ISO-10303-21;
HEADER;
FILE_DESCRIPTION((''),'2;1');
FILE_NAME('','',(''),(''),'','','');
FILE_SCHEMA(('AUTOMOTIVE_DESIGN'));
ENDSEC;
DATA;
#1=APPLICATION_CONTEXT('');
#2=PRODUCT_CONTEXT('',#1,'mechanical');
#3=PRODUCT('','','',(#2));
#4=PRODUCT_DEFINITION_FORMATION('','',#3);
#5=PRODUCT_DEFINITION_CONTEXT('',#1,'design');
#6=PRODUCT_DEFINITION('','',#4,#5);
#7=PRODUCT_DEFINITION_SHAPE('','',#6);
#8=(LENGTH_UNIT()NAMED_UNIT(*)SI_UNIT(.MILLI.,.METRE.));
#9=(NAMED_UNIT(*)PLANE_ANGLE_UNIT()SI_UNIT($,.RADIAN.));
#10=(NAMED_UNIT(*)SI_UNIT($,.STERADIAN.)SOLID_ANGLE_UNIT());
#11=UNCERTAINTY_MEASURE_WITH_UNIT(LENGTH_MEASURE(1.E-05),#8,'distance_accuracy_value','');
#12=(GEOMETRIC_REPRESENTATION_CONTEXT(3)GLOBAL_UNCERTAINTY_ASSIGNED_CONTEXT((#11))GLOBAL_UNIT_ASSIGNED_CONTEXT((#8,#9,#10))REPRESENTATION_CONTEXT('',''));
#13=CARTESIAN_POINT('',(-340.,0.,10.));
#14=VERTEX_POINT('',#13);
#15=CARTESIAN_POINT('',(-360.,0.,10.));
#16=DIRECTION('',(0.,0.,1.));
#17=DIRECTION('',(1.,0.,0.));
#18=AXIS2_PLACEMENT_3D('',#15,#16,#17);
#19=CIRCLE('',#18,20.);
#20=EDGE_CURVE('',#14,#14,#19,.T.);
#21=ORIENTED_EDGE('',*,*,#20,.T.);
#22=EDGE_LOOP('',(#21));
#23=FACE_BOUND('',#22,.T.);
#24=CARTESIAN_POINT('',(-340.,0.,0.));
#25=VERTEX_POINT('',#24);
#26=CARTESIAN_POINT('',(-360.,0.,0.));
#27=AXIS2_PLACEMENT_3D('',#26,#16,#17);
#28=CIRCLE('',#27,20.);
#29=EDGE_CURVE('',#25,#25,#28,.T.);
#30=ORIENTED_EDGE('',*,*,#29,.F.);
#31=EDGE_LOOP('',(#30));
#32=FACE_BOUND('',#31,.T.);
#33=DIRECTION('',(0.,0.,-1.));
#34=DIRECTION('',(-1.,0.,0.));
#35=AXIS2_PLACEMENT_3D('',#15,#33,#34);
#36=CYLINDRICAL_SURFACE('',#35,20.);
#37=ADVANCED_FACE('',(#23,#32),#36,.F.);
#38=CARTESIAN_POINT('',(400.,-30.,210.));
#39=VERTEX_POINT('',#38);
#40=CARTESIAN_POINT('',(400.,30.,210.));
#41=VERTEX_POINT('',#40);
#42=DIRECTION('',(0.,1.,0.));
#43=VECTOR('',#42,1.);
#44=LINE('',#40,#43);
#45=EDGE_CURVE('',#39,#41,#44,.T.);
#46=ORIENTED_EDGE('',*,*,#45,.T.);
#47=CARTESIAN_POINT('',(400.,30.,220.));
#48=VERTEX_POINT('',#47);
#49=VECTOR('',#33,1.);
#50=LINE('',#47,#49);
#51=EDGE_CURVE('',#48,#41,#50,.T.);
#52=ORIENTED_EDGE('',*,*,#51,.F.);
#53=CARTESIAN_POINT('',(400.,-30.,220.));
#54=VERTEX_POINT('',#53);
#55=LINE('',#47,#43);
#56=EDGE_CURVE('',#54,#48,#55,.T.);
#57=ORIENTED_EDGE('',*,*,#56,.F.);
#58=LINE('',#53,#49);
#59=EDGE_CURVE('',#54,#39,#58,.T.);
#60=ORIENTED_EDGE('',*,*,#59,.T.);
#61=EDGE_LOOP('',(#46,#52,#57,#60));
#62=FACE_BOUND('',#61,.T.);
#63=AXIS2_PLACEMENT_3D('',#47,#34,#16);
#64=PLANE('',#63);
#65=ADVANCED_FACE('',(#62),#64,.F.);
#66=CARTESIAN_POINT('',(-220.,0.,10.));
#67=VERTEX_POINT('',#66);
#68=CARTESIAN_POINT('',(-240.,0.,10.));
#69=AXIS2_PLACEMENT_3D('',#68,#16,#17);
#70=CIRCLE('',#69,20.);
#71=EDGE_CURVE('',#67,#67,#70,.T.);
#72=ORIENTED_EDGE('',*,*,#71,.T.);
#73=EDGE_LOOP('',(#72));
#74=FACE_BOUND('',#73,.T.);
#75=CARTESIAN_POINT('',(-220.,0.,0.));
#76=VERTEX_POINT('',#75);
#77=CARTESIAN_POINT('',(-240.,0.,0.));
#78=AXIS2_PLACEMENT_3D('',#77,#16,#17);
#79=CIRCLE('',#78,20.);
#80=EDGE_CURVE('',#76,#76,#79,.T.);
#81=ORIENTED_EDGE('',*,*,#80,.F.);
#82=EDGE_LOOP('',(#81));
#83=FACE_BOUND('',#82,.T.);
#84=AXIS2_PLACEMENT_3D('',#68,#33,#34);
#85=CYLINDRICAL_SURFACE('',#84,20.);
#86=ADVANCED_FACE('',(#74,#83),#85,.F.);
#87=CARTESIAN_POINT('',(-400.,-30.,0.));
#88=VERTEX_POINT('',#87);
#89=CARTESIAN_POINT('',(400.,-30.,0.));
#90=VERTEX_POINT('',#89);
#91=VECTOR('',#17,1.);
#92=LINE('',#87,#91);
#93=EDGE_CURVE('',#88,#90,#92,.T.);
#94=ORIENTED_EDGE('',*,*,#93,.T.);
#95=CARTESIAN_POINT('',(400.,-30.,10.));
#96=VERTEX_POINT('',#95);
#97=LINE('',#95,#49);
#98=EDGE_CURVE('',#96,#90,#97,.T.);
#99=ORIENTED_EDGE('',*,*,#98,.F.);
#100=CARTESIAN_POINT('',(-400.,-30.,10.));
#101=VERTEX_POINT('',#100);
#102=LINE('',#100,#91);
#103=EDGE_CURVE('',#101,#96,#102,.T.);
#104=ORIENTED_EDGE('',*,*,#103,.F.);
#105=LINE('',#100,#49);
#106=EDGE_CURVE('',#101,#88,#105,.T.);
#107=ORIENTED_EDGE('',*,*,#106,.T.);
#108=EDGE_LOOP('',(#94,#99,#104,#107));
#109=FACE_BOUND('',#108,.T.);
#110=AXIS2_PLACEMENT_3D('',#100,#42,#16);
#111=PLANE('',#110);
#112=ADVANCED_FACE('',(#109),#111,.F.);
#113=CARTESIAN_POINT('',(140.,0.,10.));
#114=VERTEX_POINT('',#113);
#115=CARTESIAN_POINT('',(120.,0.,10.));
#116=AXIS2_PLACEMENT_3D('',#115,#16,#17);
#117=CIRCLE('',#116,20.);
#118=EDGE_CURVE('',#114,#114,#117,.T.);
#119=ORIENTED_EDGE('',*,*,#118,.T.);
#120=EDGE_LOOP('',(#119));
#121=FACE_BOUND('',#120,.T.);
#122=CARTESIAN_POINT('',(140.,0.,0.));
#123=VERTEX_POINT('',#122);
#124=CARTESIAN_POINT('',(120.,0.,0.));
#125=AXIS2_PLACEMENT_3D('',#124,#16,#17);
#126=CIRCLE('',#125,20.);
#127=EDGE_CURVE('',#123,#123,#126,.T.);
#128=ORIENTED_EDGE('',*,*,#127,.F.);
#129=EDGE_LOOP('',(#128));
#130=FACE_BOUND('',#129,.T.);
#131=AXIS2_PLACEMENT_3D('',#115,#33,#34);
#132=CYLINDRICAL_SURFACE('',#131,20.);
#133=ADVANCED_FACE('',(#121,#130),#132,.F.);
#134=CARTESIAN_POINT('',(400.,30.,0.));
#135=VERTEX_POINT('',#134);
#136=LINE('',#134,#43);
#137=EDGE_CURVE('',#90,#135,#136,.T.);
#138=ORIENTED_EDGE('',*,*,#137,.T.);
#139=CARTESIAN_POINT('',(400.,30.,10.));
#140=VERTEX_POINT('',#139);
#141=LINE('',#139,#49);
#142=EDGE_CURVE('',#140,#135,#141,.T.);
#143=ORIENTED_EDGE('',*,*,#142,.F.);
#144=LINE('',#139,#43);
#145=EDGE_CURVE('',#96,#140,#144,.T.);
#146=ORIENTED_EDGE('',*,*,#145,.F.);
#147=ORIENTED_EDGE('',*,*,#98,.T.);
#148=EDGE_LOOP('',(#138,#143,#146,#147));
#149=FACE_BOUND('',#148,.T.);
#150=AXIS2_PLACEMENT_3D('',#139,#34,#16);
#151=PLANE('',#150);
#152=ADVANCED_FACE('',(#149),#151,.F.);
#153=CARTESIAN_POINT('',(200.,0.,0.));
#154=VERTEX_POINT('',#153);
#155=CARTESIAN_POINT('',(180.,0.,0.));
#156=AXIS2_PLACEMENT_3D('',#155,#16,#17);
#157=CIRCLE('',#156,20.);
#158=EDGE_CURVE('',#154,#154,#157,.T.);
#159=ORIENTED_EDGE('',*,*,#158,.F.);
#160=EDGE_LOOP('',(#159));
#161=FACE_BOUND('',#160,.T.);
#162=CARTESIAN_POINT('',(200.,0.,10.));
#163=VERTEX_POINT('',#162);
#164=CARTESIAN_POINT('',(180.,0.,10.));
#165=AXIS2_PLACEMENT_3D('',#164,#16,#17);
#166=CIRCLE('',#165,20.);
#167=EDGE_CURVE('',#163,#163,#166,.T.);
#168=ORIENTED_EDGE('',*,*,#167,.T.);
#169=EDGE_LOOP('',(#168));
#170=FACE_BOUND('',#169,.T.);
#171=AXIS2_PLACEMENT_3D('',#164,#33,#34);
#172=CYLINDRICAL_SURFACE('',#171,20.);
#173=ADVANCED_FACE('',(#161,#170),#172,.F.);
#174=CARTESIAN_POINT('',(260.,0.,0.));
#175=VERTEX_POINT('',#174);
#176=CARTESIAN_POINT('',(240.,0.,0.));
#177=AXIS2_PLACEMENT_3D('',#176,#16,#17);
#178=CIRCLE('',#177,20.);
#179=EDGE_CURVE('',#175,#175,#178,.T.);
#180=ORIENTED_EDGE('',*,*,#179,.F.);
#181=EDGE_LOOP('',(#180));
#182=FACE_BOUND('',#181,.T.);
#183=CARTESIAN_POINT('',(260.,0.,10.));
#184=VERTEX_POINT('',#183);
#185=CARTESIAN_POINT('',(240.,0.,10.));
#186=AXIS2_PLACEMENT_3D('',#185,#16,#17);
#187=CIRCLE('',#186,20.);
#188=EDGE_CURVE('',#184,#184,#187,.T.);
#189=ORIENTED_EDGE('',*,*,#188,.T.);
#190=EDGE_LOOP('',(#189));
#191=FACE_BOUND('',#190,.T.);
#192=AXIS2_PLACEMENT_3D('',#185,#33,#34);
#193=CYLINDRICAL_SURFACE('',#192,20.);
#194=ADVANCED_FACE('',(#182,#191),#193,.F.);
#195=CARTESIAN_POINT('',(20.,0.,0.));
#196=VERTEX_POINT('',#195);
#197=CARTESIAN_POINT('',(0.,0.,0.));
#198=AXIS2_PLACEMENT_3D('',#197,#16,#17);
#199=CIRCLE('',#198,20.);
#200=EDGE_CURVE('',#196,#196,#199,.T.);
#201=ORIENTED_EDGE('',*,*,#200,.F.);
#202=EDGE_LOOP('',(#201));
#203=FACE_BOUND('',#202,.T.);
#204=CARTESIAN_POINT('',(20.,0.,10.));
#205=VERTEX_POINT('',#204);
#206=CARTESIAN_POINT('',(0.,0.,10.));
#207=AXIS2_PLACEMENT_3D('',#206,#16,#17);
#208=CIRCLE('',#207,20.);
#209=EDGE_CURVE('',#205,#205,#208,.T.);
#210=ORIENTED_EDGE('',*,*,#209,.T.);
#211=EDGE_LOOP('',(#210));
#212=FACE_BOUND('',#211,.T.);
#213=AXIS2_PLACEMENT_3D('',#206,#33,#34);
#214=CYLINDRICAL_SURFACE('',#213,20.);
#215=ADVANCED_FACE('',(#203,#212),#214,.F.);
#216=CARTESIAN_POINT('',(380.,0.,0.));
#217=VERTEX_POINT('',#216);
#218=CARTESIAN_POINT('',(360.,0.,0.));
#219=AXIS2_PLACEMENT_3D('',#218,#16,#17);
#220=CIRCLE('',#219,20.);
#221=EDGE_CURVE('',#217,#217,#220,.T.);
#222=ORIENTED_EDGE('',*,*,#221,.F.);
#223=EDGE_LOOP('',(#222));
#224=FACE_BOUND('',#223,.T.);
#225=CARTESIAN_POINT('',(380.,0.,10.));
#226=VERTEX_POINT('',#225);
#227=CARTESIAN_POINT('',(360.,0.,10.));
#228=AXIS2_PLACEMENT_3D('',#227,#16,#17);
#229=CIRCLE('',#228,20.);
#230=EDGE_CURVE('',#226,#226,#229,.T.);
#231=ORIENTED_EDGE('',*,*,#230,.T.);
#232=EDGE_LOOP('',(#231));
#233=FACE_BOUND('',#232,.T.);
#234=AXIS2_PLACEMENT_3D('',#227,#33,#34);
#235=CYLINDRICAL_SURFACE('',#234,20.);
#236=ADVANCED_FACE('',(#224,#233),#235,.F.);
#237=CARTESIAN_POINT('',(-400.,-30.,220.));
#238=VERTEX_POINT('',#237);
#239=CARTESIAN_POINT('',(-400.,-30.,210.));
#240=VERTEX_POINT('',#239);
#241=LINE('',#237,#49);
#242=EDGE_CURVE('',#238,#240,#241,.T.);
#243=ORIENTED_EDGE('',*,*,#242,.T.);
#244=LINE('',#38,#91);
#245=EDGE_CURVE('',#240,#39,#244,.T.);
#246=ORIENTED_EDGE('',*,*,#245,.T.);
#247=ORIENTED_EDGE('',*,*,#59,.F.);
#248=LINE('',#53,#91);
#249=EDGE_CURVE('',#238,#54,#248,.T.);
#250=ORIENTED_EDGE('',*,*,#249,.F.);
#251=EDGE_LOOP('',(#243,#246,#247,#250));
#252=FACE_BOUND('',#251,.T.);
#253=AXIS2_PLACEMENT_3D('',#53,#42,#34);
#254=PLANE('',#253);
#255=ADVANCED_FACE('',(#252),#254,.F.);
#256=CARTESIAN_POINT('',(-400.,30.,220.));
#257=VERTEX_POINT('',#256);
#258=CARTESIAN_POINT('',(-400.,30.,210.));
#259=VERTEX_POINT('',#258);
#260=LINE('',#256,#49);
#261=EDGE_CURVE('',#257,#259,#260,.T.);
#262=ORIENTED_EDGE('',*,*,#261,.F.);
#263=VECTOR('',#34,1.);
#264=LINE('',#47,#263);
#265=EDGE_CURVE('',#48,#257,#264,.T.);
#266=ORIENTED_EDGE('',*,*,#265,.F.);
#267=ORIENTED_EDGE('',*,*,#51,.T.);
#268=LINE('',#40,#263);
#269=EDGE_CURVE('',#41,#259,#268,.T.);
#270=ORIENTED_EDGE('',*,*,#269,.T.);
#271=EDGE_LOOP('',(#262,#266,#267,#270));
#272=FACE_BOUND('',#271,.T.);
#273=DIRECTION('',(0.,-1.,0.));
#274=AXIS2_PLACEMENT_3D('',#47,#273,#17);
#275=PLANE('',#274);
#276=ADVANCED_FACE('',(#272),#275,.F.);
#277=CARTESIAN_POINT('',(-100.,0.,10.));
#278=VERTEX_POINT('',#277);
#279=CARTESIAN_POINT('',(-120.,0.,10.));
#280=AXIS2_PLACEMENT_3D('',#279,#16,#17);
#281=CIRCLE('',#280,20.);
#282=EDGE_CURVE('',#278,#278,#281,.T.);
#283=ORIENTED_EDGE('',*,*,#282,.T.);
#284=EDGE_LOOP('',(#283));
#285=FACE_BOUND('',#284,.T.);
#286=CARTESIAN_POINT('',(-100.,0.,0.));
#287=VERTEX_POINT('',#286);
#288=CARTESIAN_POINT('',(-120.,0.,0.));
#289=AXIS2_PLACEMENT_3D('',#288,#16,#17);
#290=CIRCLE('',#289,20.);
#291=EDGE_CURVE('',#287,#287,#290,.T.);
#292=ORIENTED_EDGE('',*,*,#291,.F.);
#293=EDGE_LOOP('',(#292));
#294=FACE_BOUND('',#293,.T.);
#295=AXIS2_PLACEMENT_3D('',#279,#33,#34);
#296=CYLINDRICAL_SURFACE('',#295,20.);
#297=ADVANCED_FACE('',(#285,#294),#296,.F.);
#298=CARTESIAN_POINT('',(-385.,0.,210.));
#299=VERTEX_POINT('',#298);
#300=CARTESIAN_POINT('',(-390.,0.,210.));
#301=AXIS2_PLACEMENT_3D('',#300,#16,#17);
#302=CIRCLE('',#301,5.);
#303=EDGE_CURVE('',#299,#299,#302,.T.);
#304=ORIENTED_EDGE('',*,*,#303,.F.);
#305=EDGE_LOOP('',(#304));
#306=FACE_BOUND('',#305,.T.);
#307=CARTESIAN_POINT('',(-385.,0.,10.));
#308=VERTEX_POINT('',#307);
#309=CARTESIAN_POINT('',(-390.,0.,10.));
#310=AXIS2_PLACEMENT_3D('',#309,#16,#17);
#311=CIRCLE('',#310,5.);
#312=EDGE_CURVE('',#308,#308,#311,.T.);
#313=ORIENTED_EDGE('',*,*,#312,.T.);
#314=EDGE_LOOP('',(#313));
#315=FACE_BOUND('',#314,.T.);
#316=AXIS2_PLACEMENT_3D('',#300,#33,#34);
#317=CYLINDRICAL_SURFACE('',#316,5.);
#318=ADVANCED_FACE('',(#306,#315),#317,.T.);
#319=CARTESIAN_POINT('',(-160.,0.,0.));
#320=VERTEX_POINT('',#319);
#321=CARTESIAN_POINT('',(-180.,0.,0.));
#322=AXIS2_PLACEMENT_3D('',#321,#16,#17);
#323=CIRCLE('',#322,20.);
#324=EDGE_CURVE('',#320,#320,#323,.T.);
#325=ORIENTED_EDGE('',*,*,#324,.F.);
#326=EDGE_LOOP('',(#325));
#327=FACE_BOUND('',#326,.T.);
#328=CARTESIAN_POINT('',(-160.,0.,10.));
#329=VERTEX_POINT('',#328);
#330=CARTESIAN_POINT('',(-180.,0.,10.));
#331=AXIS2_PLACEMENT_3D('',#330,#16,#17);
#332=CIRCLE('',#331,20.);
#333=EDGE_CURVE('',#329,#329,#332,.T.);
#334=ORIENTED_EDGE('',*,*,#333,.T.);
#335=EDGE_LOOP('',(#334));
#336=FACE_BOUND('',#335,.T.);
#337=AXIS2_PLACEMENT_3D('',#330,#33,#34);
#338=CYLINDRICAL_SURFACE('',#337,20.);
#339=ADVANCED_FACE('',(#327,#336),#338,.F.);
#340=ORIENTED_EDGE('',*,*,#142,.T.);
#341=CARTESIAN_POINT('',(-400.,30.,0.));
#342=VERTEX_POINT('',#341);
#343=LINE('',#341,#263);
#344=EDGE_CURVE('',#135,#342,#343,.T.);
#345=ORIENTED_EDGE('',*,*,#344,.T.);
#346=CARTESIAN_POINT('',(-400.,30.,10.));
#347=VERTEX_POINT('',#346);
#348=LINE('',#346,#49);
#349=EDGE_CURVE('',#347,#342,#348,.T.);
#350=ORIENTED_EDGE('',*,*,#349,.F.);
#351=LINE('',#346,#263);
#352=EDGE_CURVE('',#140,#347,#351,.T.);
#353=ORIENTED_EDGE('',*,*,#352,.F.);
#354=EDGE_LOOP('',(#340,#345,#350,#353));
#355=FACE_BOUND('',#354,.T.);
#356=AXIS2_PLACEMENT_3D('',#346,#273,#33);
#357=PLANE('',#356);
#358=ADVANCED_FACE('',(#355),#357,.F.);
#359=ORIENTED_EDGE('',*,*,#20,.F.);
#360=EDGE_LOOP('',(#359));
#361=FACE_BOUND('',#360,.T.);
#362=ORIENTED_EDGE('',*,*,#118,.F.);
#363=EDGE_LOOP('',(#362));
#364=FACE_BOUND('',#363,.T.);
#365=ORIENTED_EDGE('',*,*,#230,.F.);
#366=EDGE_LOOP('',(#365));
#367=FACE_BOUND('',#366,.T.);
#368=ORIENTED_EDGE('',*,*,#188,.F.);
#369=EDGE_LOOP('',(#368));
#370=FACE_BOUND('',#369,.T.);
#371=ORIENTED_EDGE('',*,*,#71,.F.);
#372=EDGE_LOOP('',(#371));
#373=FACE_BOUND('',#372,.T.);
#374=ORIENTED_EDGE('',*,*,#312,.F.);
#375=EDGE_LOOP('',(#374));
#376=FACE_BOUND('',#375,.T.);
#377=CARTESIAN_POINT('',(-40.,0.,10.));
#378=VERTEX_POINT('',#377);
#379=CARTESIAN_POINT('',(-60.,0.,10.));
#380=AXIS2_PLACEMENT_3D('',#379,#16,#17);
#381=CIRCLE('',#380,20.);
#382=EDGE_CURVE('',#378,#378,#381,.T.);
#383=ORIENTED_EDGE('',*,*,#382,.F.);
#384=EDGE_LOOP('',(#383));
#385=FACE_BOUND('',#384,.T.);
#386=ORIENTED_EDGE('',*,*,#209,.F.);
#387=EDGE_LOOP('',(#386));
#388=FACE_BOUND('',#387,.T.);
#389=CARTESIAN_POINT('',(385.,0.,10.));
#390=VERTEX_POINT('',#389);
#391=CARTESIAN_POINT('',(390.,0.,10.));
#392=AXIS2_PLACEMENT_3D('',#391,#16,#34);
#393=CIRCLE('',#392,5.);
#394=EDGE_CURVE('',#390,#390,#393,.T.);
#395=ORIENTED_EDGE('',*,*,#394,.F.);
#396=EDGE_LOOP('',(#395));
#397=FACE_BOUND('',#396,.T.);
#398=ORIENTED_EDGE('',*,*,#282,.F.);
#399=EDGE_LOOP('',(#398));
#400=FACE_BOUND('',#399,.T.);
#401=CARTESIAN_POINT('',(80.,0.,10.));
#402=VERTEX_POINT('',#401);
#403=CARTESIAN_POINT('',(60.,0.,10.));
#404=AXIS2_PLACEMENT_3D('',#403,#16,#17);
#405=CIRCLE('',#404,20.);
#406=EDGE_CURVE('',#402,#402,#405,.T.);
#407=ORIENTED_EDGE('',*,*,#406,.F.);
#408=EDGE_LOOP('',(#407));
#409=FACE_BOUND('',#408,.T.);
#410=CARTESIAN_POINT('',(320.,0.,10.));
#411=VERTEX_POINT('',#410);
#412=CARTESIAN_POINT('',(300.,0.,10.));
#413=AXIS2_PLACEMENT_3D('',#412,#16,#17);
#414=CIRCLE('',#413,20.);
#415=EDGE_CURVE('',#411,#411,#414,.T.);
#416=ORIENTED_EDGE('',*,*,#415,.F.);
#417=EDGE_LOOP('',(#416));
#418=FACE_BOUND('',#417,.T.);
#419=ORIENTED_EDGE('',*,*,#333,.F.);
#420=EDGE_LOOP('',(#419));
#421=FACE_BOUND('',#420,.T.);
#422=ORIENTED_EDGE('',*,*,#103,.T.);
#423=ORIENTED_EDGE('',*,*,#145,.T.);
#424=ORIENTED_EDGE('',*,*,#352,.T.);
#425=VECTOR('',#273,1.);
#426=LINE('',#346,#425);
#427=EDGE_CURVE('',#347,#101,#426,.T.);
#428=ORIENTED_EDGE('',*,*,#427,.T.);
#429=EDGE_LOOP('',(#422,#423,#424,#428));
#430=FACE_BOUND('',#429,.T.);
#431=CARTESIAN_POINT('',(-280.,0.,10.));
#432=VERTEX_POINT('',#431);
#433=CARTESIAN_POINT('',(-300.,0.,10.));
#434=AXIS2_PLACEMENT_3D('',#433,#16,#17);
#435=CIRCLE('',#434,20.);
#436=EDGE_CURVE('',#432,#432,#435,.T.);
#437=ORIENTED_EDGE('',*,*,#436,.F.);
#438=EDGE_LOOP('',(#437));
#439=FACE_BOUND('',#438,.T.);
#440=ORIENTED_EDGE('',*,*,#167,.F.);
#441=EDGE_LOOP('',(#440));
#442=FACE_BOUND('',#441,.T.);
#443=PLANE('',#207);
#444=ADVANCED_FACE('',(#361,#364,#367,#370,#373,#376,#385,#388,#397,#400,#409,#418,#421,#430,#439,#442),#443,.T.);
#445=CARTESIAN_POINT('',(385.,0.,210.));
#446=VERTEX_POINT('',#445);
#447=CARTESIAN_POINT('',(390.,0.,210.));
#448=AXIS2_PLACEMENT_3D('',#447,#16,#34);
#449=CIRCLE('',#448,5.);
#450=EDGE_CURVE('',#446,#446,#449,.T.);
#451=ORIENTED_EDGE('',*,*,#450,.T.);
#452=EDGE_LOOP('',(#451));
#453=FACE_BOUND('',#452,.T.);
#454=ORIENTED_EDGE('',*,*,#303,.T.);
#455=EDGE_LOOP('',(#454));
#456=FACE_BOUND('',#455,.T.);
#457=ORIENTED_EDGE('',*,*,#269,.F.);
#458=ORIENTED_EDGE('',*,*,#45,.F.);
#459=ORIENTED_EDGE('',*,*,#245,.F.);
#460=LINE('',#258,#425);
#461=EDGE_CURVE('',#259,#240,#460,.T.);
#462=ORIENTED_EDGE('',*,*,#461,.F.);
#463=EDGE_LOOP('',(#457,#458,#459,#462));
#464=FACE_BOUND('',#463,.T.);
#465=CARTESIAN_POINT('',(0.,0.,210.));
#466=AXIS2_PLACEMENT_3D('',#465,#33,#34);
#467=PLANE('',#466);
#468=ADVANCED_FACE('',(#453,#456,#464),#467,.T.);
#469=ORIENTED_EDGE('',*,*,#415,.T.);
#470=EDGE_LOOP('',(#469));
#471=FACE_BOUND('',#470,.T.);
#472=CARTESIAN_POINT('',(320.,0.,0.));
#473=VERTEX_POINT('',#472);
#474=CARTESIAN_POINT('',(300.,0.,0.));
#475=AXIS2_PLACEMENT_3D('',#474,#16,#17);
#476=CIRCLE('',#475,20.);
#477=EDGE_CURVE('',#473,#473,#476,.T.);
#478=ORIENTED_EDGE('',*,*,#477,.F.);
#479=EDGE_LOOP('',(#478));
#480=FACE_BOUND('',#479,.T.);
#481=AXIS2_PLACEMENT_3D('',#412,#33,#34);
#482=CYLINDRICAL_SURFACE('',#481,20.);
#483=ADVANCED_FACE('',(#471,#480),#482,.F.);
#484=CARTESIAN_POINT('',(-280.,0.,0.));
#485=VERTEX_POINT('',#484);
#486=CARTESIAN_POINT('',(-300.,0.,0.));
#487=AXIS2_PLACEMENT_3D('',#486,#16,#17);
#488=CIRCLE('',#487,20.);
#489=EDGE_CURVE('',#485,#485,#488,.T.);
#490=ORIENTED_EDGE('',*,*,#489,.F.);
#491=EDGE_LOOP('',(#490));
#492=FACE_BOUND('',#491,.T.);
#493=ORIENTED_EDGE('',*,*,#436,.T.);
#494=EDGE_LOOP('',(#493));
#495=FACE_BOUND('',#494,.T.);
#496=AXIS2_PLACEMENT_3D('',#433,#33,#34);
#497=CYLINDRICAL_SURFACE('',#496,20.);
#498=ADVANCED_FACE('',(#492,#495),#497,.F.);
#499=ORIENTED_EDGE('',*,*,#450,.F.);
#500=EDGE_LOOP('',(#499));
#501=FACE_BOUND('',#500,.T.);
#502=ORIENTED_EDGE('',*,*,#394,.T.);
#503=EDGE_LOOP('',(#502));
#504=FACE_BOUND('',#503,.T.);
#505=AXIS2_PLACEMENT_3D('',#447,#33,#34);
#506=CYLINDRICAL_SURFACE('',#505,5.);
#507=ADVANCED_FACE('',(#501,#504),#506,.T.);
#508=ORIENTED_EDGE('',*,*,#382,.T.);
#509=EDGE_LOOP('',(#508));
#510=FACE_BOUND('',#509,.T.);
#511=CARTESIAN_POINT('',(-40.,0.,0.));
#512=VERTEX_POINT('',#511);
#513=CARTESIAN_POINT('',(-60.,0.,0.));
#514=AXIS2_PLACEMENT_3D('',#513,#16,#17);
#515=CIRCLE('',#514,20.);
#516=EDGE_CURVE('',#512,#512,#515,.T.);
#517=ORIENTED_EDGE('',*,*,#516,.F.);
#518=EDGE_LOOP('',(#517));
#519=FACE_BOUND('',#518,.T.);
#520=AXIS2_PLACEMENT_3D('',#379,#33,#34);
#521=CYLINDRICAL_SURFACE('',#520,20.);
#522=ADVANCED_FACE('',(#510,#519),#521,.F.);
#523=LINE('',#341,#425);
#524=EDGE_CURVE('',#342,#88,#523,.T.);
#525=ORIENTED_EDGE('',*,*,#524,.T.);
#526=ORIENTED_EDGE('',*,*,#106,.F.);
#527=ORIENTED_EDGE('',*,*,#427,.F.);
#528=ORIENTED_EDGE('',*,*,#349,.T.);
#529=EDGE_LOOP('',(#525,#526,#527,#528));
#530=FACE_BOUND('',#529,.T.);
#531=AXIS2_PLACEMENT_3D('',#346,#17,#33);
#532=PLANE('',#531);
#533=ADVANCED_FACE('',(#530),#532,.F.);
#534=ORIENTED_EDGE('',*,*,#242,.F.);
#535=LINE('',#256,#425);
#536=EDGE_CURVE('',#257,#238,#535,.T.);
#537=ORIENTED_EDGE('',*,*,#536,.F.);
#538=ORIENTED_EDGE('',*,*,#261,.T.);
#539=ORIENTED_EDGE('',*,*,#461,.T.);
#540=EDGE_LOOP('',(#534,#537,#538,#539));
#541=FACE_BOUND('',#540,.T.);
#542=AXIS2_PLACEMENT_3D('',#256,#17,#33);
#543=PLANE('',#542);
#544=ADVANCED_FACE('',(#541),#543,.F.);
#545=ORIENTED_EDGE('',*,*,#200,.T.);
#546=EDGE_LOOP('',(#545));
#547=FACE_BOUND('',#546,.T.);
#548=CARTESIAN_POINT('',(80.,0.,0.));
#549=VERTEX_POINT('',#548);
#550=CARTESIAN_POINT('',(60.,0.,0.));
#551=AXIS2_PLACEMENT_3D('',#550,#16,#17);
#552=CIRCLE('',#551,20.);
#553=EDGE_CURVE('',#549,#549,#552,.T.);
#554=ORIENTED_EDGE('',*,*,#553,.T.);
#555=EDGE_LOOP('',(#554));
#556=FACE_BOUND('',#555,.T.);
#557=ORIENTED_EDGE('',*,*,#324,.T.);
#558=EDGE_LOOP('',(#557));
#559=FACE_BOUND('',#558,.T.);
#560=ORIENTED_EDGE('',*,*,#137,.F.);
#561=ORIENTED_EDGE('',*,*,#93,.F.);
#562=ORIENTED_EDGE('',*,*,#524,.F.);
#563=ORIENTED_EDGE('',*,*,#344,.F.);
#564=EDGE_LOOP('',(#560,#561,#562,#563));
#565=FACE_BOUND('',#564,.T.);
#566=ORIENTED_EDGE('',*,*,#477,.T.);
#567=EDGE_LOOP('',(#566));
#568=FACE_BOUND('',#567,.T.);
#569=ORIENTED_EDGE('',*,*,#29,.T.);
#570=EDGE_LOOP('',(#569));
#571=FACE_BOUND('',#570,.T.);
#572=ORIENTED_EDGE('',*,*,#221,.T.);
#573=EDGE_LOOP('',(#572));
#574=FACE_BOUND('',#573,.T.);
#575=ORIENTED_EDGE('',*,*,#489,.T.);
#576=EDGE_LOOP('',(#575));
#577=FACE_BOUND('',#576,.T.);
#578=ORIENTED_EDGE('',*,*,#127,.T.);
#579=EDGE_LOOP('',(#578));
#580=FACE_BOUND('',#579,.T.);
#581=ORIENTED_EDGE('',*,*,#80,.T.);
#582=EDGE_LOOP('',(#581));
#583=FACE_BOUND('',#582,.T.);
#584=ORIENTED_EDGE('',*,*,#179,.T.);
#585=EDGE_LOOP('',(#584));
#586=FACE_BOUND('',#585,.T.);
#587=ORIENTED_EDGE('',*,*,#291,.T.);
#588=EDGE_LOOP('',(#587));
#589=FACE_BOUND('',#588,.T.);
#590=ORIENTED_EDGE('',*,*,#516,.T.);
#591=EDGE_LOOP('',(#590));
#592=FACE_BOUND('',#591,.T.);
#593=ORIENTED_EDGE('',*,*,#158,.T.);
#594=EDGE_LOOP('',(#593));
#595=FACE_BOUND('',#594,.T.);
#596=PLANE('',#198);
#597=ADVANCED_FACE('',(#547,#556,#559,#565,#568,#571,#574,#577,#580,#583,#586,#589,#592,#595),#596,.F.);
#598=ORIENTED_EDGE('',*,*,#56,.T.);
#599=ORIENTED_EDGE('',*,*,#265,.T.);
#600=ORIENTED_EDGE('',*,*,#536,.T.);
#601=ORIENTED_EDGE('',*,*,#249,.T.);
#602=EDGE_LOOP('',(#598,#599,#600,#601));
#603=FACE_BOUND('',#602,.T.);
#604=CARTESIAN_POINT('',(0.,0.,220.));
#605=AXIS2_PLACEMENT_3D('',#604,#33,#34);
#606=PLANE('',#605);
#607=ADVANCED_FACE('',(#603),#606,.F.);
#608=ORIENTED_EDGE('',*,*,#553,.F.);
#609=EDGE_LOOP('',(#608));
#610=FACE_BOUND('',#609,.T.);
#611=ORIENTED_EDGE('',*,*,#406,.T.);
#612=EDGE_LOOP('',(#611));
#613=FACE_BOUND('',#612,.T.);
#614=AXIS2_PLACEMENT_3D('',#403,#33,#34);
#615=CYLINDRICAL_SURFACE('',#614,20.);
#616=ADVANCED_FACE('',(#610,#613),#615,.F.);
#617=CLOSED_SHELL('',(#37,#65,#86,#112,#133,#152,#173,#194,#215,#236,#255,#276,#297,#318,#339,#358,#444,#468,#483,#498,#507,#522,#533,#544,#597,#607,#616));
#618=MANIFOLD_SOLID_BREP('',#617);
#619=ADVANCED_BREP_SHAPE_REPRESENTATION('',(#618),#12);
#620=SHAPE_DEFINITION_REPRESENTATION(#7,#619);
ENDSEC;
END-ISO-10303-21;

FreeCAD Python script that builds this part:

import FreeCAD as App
import Part
import Sketcher
from FreeCAD import Vector
Q = App.Units.Quantity


def add_polygon(sketch, points):
    """Adds a closed chain of lines whose ends are joined by coincident constraints."""
    first, n = sketch.GeometryCount, len(points)
    for a, b in zip(points, points[1:] + points[:1]):
        sketch.addGeometry(Part.LineSegment(App.Vector(*a, 0), App.Vector(*b, 0)), False)
    for i in range(n):
        sketch.addConstraint(Sketcher.Constraint("Coincident", first + i, 2, first + (i + 1) % n, 1))

doc = App.newDocument("Part")
body = doc.addObject("PartDesign::Body", "Body")

sketch1 = body.newObject("Sketcher::SketchObject", "Sketch")
sketch1.AttachmentSupport = (doc.getObject("XY_Plane"), [""])
sketch1.MapMode = "FlatFace"
add_polygon(sketch1, [(-400, 30), (-400, -30), (400, -30), (400, 30)])
sketch1.addConstraint([
    Sketcher.Constraint("Vertical", 0),
    Sketcher.Constraint("Horizontal", 1),
    Sketcher.Constraint("Vertical", 2),
    Sketcher.Constraint("Horizontal", 3),
    Sketcher.Constraint("Symmetric", 0, 2, 2, 2, -1, 1),
    Sketcher.Constraint("DistanceX", 1, 1, 1, 2, Q("800 mm")),
    Sketcher.Constraint("DistanceY", 0, 2, 0, 1, Q("60 mm")),
])
pad1 = body.newObject("PartDesign::Pad", "Pad")
pad1.Profile = sketch1
pad1.Length = 10

sketch2 = body.newObject("Sketcher::SketchObject", "Sketch001")
sketch2.AttachmentSupport = (doc.getObject("XY_Plane"), [""])
sketch2.MapMode = "FlatFace"
sketch2.addGeometry(Part.Circle(Vector(0, 0, 0), Vector(0, 0, 1), 20), False)
sketch2.addConstraint([
    Sketcher.Constraint("Coincident", 0, 3, -1, 1),
    Sketcher.Constraint("Diameter", 0, Q("40 mm")),
])
pocket1 = body.newObject("PartDesign::Pocket", "Pocket")
pocket1.Profile = sketch2
pocket1.Length = 10
pocket1.Reversed = True
doc.recompute()

linearpattern = body.newObject("PartDesign::LinearPattern", "LinearPattern")
linearpattern.Originals = [pocket1]
linearpattern.Direction = (doc.getObject("X_Axis"), [""])
linearpattern.Mode = "offset"
linearpattern.Offset = 60
linearpattern.Occurrences = 7
body.Tip = linearpattern

sketch3 = body.newObject("Sketcher::SketchObject", "Sketch002")
sketch3.AttachmentSupport = (doc.getObject("XY_Plane"), [""])
sketch3.MapMode = "FlatFace"
sketch3.addGeometry(Part.Circle(Vector(0, 0, 0), Vector(0, 0, 1), 20), False)
sketch3.addConstraint([
    Sketcher.Constraint("Coincident", 0, 3, -1, 1),
    Sketcher.Constraint("Diameter", 0, Q("40 mm")),
])
pocket2 = body.newObject("PartDesign::Pocket", "Pocket001")
pocket2.Profile = sketch3
pocket2.Length = 10
pocket2.Reversed = True

sketch4 = body.newObject("Sketcher::SketchObject", "Sketch003")
sketch4.AttachmentSupport = (doc.getObject("XY_Plane"), [""])
sketch4.MapMode = "FlatFace"
sketch4.addGeometry(Part.Circle(Vector(-60, 0, 0), Vector(0, 0, 1), 20), False)
sketch4.addConstraint([
    Sketcher.Constraint("PointOnObject", 0, 3, -1),
    Sketcher.Constraint("Diameter", 0, Q("40 mm")),
    Sketcher.Constraint("DistanceX", 0, 3, -1, 1, Q("60 mm")),
])
pocket3 = body.newObject("PartDesign::Pocket", "Pocket002")
pocket3.Profile = sketch4
pocket3.Length = 10
pocket3.Reversed = True

sketch5 = body.newObject("Sketcher::SketchObject", "Sketch004")
sketch5.AttachmentSupport = (doc.getObject("XY_Plane"), [""])
sketch5.MapMode = "FlatFace"
sketch5.addGeometry(Part.Circle(Vector(-120, 0, 0), Vector(0, 0, 1), 20), False)
sketch5.addConstraint([
    Sketcher.Constraint("PointOnObject", 0, 3, -1),
    Sketcher.Constraint("Diameter", 0, Q("40 mm")),
    Sketcher.Constraint("DistanceX", 0, 3, -1, 1, Q("120 mm")),
])
pocket4 = body.newObject("PartDesign::Pocket", "Pocket003")
pocket4.Profile = sketch5
pocket4.Length = 10
pocket4.Reversed = True

sketch6 = body.newObject("Sketcher::SketchObject", "Sketch005")
sketch6.AttachmentSupport = (doc.getObject("XY_Plane"), [""])
sketch6.MapMode = "FlatFace"
sketch6.addGeometry(Part.Circle(Vector(-180, 0, 0), Vector(0, 0, 1), 20), False)
sketch6.addConstraint([
    Sketcher.Constraint("PointOnObject", 0, 3, -1),
    Sketcher.Constraint("Diameter", 0, Q("40 mm")),
    Sketcher.Constraint("DistanceX", 0, 3, -1, 1, Q("180 mm")),
])
pocket5 = body.newObject("PartDesign::Pocket", "Pocket004")
pocket5.Profile = sketch6
pocket5.Length = 10
pocket5.Reversed = True

sketch7 = body.newObject("Sketcher::SketchObject", "Sketch006")
sketch7.AttachmentSupport = (doc.getObject("XY_Plane"), [""])
sketch7.MapMode = "FlatFace"
sketch7.addGeometry(Part.Circle(Vector(-240, 0, 0), Vector(0, 0, 1), 20), False)
sketch7.addConstraint([
    Sketcher.Constraint("PointOnObject", 0, 3, -1),
    Sketcher.Constraint("Diameter", 0, Q("40 mm")),
    Sketcher.Constraint("DistanceX", 0, 3, -1, 1, Q("240 mm")),
])
pocket6 = body.newObject("PartDesign::Pocket", "Pocket005")
pocket6.Profile = sketch7
pocket6.Length = 10
pocket6.Reversed = True

sketch8 = body.newObject("Sketcher::SketchObject", "Sketch007")
sketch8.AttachmentSupport = (doc.getObject("XY_Plane"), [""])
sketch8.MapMode = "FlatFace"
sketch8.addGeometry(Part.Circle(Vector(-300, 0, 0), Vector(0, 0, 1), 20), False)
sketch8.addConstraint([
    Sketcher.Constraint("PointOnObject", 0, 3, -1),
    Sketcher.Constraint("Diameter", 0, Q("40 mm")),
    Sketcher.Constraint("DistanceX", 0, 3, -1, 1, Q("300 mm")),
])
pocket7 = body.newObject("PartDesign::Pocket", "Pocket006")
pocket7.Profile = sketch8
pocket7.Length = 10
pocket7.Reversed = True

sketch9 = body.newObject("Sketcher::SketchObject", "Sketch008")
sketch9.AttachmentSupport = (doc.getObject("XY_Plane"), [""])
sketch9.MapMode = "FlatFace"
sketch9.addGeometry(Part.Circle(Vector(60, 0, 0), Vector(0, 0, 1), 20), False)
sketch9.addConstraint([
    Sketcher.Constraint("PointOnObject", 0, 3, -1),
    Sketcher.Constraint("Diameter", 0, Q("40 mm")),
    Sketcher.Constraint("DistanceX", -1, 1, 0, 3, Q("60 mm")),
])
pocket8 = body.newObject("PartDesign::Pocket", "Pocket007")
pocket8.Profile = sketch9
pocket8.Length = 10
pocket8.Reversed = True

sketch10 = body.newObject("Sketcher::SketchObject", "Sketch009")
sketch10.AttachmentSupport = (doc.getObject("XY_Plane"), [""])
sketch10.MapMode = "FlatFace"
sketch10.addGeometry(Part.Circle(Vector(0, 0, 0), Vector(0, 0, 1), 20), False)
sketch10.addConstraint([
    Sketcher.Constraint("Coincident", 0, 3, -1, 1),
    Sketcher.Constraint("Diameter", 0, Q("40 mm")),
])
pocket9 = body.newObject("PartDesign::Pocket", "Pocket008")
pocket9.Profile = sketch10
pocket9.Length = 10
pocket9.Reversed = True

sketch11 = body.newObject("Sketcher::SketchObject", "Sketch010")
sketch11.AttachmentSupport = (doc.getObject("XY_Plane"), [""])
sketch11.MapMode = "FlatFace"
sketch11.addGeometry(Part.Circle(Vector(-60, 0, 0), Vector(0, 0, 1), 20), False)
sketch11.addConstraint([
    Sketcher.Constraint("PointOnObject", 0, 3, -1),
    Sketcher.Constraint("Diameter", 0, Q("40 mm")),
    Sketcher.Constraint("DistanceX", 0, 3, -1, 1, Q("60 mm")),
])
pocket10 = body.newObject("PartDesign::Pocket", "Pocket009")
pocket10.Profile = sketch11
pocket10.Length = 10
pocket10.Reversed = True

sketch12 = body.newObject("Sketcher::SketchObject", "Sketch011")
sketch12.AttachmentSupport = (doc.getObject("XY_Plane"), [""])
sketch12.MapMode = "FlatFace"
sketch12.addGeometry(Part.Circle(Vector(-120, 0, 0), Vector(0, 0, 1), 20), False)
sketch12.addConstraint([
    Sketcher.Constraint("PointOnObject", 0, 3, -1),
    Sketcher.Constraint("Diameter", 0, Q("40 mm")),
    Sketcher.Constraint("DistanceX", 0, 3, -1, 1, Q("120 mm")),
])
pocket11 = body.newObject("PartDesign::Pocket", "Pocket010")
pocket11.Profile = sketch12
pocket11.Length = 10
pocket11.Reversed = True

sketch13 = body.newObject("Sketcher::SketchObject", "Sketch012")
sketch13.AttachmentSupport = (doc.getObject("XY_Plane"), [""])
sketch13.MapMode = "FlatFace"
sketch13.addGeometry(Part.Circle(Vector(-180, 0, 0), Vector(0, 0, 1), 20), False)
sketch13.addConstraint([
    Sketcher.Constraint("PointOnObject", 0, 3, -1),
    Sketcher.Constraint("Diameter", 0, Q("40 mm")),
    Sketcher.Constraint("DistanceX", 0, 3, -1, 1, Q("180 mm")),
])
pocket12 = body.newObject("PartDesign::Pocket", "Pocket011")
pocket12.Profile = sketch13
pocket12.Length = 10
pocket12.Reversed = True

sketch14 = body.newObject("Sketcher::SketchObject", "Sketch013")
sketch14.AttachmentSupport = (doc.getObject("XY_Plane"), [""])
sketch14.MapMode = "FlatFace"
sketch14.addGeometry(Part.Circle(Vector(-240, 0, 0), Vector(0, 0, 1), 20), False)
sketch14.addConstraint([
    Sketcher.Constraint("PointOnObject", 0, 3, -1),
    Sketcher.Constraint("Diameter", 0, Q("40 mm")),
    Sketcher.Constraint("DistanceX", 0, 3, -1, 1, Q("240 mm")),
])
pocket13 = body.newObject("PartDesign::Pocket", "Pocket012")
pocket13.Profile = sketch14
pocket13.Length = 10
pocket13.Reversed = True

sketch15 = body.newObject("Sketcher::SketchObject", "Sketch014")
sketch15.AttachmentSupport = (doc.getObject("XY_Plane"), [""])
sketch15.MapMode = "FlatFace"
sketch15.addGeometry(Part.Circle(Vector(120, 0, 0), Vector(0, 0, 1), 20), False)
sketch15.addConstraint([
    Sketcher.Constraint("PointOnObject", 0, 3, -1),
    Sketcher.Constraint("Diameter", 0, Q("40 mm")),
    Sketcher.Constraint("DistanceX", -1, 1, 0, 3, Q("120 mm")),
])
pocket14 = body.newObject("PartDesign::Pocket", "Pocket013")
pocket14.Profile = sketch15
pocket14.Length = 10
pocket14.Reversed = True

sketch16 = body.newObject("Sketcher::SketchObject", "Sketch015")
sketch16.AttachmentSupport = (doc.getObject("XY_Plane"), [""])
sketch16.MapMode = "FlatFace"
sketch16.addGeometry(Part.Circle(Vector(60, 0, 0), Vector(0, 0, 1), 20), False)
sketch16.addConstraint([
    Sketcher.Constraint("PointOnObject", 0, 3, -1),
    Sketcher.Constraint("Diameter", 0, Q("40 mm")),
    Sketcher.Constraint("DistanceX", -1, 1, 0, 3, Q("60 mm")),
])
pocket15 = body.newObject("PartDesign::Pocket", "Pocket014")
pocket15.Profile = sketch16
pocket15.Length = 10
pocket15.Reversed = True

sketch17 = body.newObject("Sketcher::SketchObject", "Sketch016")
sketch17.AttachmentSupport = (doc.getObject("XY_Plane"), [""])
sketch17.MapMode = "FlatFace"
sketch17.addGeometry(Part.Circle(Vector(0, 0, 0), Vector(0, 0, 1), 20), False)
sketch17.addConstraint([
    Sketcher.Constraint("Coincident", 0, 3, -1, 1),
    Sketcher.Constraint("Diameter", 0, Q("40 mm")),
])
pocket16 = body.newObject("PartDesign::Pocket", "Pocket015")
pocket16.Profile = sketch17
pocket16.Length = 10
pocket16.Reversed = True

sketch18 = body.newObject("Sketcher::SketchObject", "Sketch017")
sketch18.AttachmentSupport = (doc.getObject("XY_Plane"), [""])
sketch18.MapMode = "FlatFace"
sketch18.addGeometry(Part.Circle(Vector(-60, 0, 0), Vector(0, 0, 1), 20), False)
sketch18.addConstraint([
    Sketcher.Constraint("PointOnObject", 0, 3, -1),
    Sketcher.Constraint("Diameter", 0, Q("40 mm")),
    Sketcher.Constraint("DistanceX", 0, 3, -1, 1, Q("60 mm")),
])
pocket17 = body.newObject("PartDesign::Pocket", "Pocket016")
pocket17.Profile = sketch18
pocket17.Length = 10
pocket17.Reversed = True

sketch19 = body.newObject("Sketcher::SketchObject", "Sketch018")
sketch19.AttachmentSupport = (doc.getObject("XY_Plane"), [""])
sketch19.MapMode = "FlatFace"
sketch19.addGeometry(Part.Circle(Vector(-120, 0, 0), Vector(0, 0, 1), 20), False)
sketch19.addConstraint([
    Sketcher.Constraint("PointOnObject", 0, 3, -1),
    Sketcher.Constraint("Diameter", 0, Q("40 mm")),
    Sketcher.Constraint("DistanceX", 0, 3, -1, 1, Q("120 mm")),
])
pocket18 = body.newObject("PartDesign::Pocket", "Pocket017")
pocket18.Profile = sketch19
pocket18.Length = 10
pocket18.Reversed = True

sketch20 = body.newObject("Sketcher::SketchObject", "Sketch019")
sketch20.AttachmentSupport = (doc.getObject("XY_Plane"), [""])
sketch20.MapMode = "FlatFace"
sketch20.addGeometry(Part.Circle(Vector(-180, 0, 0), Vector(0, 0, 1), 20), False)
sketch20.addConstraint([
    Sketcher.Constraint("PointOnObject", 0, 3, -1),
    Sketcher.Constraint("Diameter", 0, Q("40 mm")),
    Sketcher.Constraint("DistanceX", 0, 3, -1, 1, Q("180 mm")),
])
pocket19 = body.newObject("PartDesign::Pocket", "Pocket018")
pocket19.Profile = sketch20
pocket19.Length = 10
pocket19.Reversed = True

sketch21 = body.newObject("Sketcher::SketchObject", "Sketch020")
sketch21.AttachmentSupport = (doc.getObject("XY_Plane"), [""])
sketch21.MapMode = "FlatFace"
sketch21.addGeometry(Part.Circle(Vector(180, 0, 0), Vector(0, 0, 1), 20), False)
sketch21.addConstraint([
    Sketcher.Constraint("PointOnObject", 0, 3, -1),
    Sketcher.Constraint("Diameter", 0, Q("40 mm")),
    Sketcher.Constraint("DistanceX", -1, 1, 0, 3, Q("180 mm")),
])
pocket20 = body.newObject("PartDesign::Pocket", "Pocket019")
pocket20.Profile = sketch21
pocket20.Length = 10
pocket20.Reversed = True

sketch22 = body.newObject("Sketcher::SketchObject", "Sketch021")
sketch22.AttachmentSupport = (doc.getObject("XY_Plane"), [""])
sketch22.MapMode = "FlatFace"
sketch22.addGeometry(Part.Circle(Vector(120, 0, 0), Vector(0, 0, 1), 20), False)
sketch22.addConstraint([
    Sketcher.Constraint("PointOnObject", 0, 3, -1),
    Sketcher.Constraint("Diameter", 0, Q("40 mm")),
    Sketcher.Constraint("DistanceX", -1, 1, 0, 3, Q("120 mm")),
])
pocket21 = body.newObject("PartDesign::Pocket", "Pocket020")
pocket21.Profile = sketch22
pocket21.Length = 10
pocket21.Reversed = True

sketch23 = body.newObject("Sketcher::SketchObject", "Sketch022")
sketch23.AttachmentSupport = (doc.getObject("XY_Plane"), [""])
sketch23.MapMode = "FlatFace"
sketch23.addGeometry(Part.Circle(Vector(60, 0, 0), Vector(0, 0, 1), 20), False)
sketch23.addConstraint([
    Sketcher.Constraint("PointOnObject", 0, 3, -1),
    Sketcher.Constraint("Diameter", 0, Q("40 mm")),
    Sketcher.Constraint("DistanceX", -1, 1, 0, 3, Q("60 mm")),
])
pocket22 = body.newObject("PartDesign::Pocket", "Pocket021")
pocket22.Profile = sketch23
pocket22.Length = 10
pocket22.Reversed = True

sketch24 = body.newObject("Sketcher::SketchObject", "Sketch023")
sketch24.AttachmentSupport = (doc.getObject("XY_Plane"), [""])
sketch24.MapMode = "FlatFace"
sketch24.addGeometry(Part.Circle(Vector(0, 0, 0), Vector(0, 0, 1), 20), False)
sketch24.addConstraint([
    Sketcher.Constraint("Coincident", 0, 3, -1, 1),
    Sketcher.Constraint("Diameter", 0, Q("40 mm")),
])
pocket23 = body.newObject("PartDesign::Pocket", "Pocket022")
pocket23.Profile = sketch24
pocket23.Length = 10
pocket23.Reversed = True

sketch25 = body.newObject("Sketcher::SketchObject", "Sketch024")
sketch25.AttachmentSupport = (doc.getObject("XY_Plane"), [""])
sketch25.MapMode = "FlatFace"
sketch25.addGeometry(Part.Circle(Vector(-60, 0, 0), Vector(0, 0, 1), 20), False)
sketch25.addConstraint([
    Sketcher.Constraint("PointOnObject", 0, 3, -1),
    Sketcher.Constraint("Diameter", 0, Q("40 mm")),
    Sketcher.Constraint("DistanceX", 0, 3, -1, 1, Q("60 mm")),
])
pocket24 = body.newObject("PartDesign::Pocket", "Pocket023")
pocket24.Profile = sketch25
pocket24.Length = 10
pocket24.Reversed = True

sketch26 = body.newObject("Sketcher::SketchObject", "Sketch025")
sketch26.AttachmentSupport = (doc.getObject("XY_Plane"), [""])
sketch26.MapMode = "FlatFace"
sketch26.addGeometry(Part.Circle(Vector(-120, 0, 0), Vector(0, 0, 1), 20), False)
sketch26.addConstraint([
    Sketcher.Constraint("PointOnObject", 0, 3, -1),
    Sketcher.Constraint("Diameter", 0, Q("40 mm")),
    Sketcher.Constraint("DistanceX", 0, 3, -1, 1, Q("120 mm")),
])
pocket25 = body.newObject("PartDesign::Pocket", "Pocket024")
pocket25.Profile = sketch26
pocket25.Length = 10
pocket25.Reversed = True

sketch27 = body.newObject("Sketcher::SketchObject", "Sketch026")
sketch27.AttachmentSupport = (doc.getObject("XY_Plane"), [""])
sketch27.MapMode = "FlatFace"
sketch27.addGeometry(Part.Circle(Vector(240, 0, 0), Vector(0, 0, 1), 20), False)
sketch27.addConstraint([
    Sketcher.Constraint("PointOnObject", 0, 3, -1),
    Sketcher.Constraint("Diameter", 0, Q("40 mm")),
    Sketcher.Constraint("DistanceX", -1, 1, 0, 3, Q("240 mm")),
])
pocket26 = body.newObject("PartDesign::Pocket", "Pocket025")
pocket26.Profile = sketch27
pocket26.Length = 10
pocket26.Reversed = True

sketch28 = body.newObject("Sketcher::SketchObject", "Sketch027")
sketch28.AttachmentSupport = (doc.getObject("XY_Plane"), [""])
sketch28.MapMode = "FlatFace"
sketch28.addGeometry(Part.Circle(Vector(180, 0, 0), Vector(0, 0, 1), 20), False)
sketch28.addConstraint([
    Sketcher.Constraint("PointOnObject", 0, 3, -1),
    Sketcher.Constraint("Diameter", 0, Q("40 mm")),
    Sketcher.Constraint("DistanceX", -1, 1, 0, 3, Q("180 mm")),
])
pocket27 = body.newObject("PartDesign::Pocket", "Pocket026")
pocket27.Profile = sketch28
pocket27.Length = 10
pocket27.Reversed = True

sketch29 = body.newObject("Sketcher::SketchObject", "Sketch028")
sketch29.AttachmentSupport = (doc.getObject("XY_Plane"), [""])
sketch29.MapMode = "FlatFace"
sketch29.addGeometry(Part.Circle(Vector(120, 0, 0), Vector(0, 0, 1), 20), False)
sketch29.addConstraint([
    Sketcher.Constraint("PointOnObject", 0, 3, -1),
    Sketcher.Constraint("Diameter", 0, Q("40 mm")),
    Sketcher.Constraint("DistanceX", -1, 1, 0, 3, Q("120 mm")),
])
pocket28 = body.newObject("PartDesign::Pocket", "Pocket027")
pocket28.Profile = sketch29
pocket28.Length = 10
pocket28.Reversed = True

sketch30 = body.newObject("Sketcher::SketchObject", "Sketch029")
sketch30.AttachmentSupport = (doc.getObject("XY_Plane"), [""])
sketch30.MapMode = "FlatFace"
sketch30.addGeometry(Part.Circle(Vector(60, 0, 0), Vector(0, 0, 1), 20), False)
sketch30.addConstraint([
    Sketcher.Constraint("PointOnObject", 0, 3, -1),
    Sketcher.Constraint("Diameter", 0, Q("40 mm")),
    Sketcher.Constraint("DistanceX", -1, 1, 0, 3, Q("60 mm")),
])
pocket29 = body.newObject("PartDesign::Pocket", "Pocket028")
pocket29.Profile = sketch30
pocket29.Length = 10
pocket29.Reversed = True

sketch31 = body.newObject("Sketcher::SketchObject", "Sketch030")
sketch31.AttachmentSupport = (doc.getObject("XY_Plane"), [""])
sketch31.MapMode = "FlatFace"
sketch31.addGeometry(Part.Circle(Vector(0, 0, 0), Vector(0, 0, 1), 20), False)
sketch31.addConstraint([
    Sketcher.Constraint("Coincident", 0, 3, -1, 1),
    Sketcher.Constraint("Diameter", 0, Q("40 mm")),
])
pocket30 = body.newObject("PartDesign::Pocket", "Pocket029")
pocket30.Profile = sketch31
pocket30.Length = 10
pocket30.Reversed = True

sketch32 = body.newObject("Sketcher::SketchObject", "Sketch031")
sketch32.AttachmentSupport = (doc.getObject("XY_Plane"), [""])
sketch32.MapMode = "FlatFace"
sketch32.addGeometry(Part.Circle(Vector(-60, 0, 0), Vector(0, 0, 1), 20), False)
sketch32.addConstraint([
    Sketcher.Constraint("PointOnObject", 0, 3, -1),
    Sketcher.Constraint("Diameter", 0, Q("40 mm")),
    Sketcher.Constraint("DistanceX", 0, 3, -1, 1, Q("60 mm")),
])
pocket31 = body.newObject("PartDesign::Pocket", "Pocket030")
pocket31.Profile = sketch32
pocket31.Length = 10
pocket31.Reversed = True

sketch33 = body.newObject("Sketcher::SketchObject", "Sketch032")
sketch33.AttachmentSupport = (doc.getObject("XY_Plane"), [""])
sketch33.MapMode = "FlatFace"
sketch33.addGeometry(Part.Circle(Vector(300, 0, 0), Vector(0, 0, 1), 20), False)
sketch33.addConstraint([
    Sketcher.Constraint("PointOnObject", 0, 3, -1),
    Sketcher.Constraint("Diameter", 0, Q("40 mm")),
    Sketcher.Constraint("DistanceX", -1, 1, 0, 3, Q("300 mm")),
])
pocket32 = body.newObject("PartDesign::Pocket", "Pocket031")
pocket32.Profile = sketch33
pocket32.Length = 10
pocket32.Reversed = True

sketch34 = body.newObject("Sketcher::SketchObject", "Sketch033")
sketch34.AttachmentSupport = (doc.getObject("XY_Plane"), [""])
sketch34.MapMode = "FlatFace"
sketch34.addGeometry(Part.Circle(Vector(240, 0, 0), Vector(0, 0, 1), 20), False)
sketch34.addConstraint([
    Sketcher.Constraint("PointOnObject", 0, 3, -1),
    Sketcher.Constraint("Diameter", 0, Q("40 mm")),
    Sketcher.Constraint("DistanceX", -1, 1, 0, 3, Q("240 mm")),
])
pocket33 = body.newObject("PartDesign::Pocket", "Pocket032")
pocket33.Profile = sketch34
pocket33.Length = 10
pocket33.Reversed = True

sketch35 = body.newObject("Sketcher::SketchObject", "Sketch034")
sketch35.AttachmentSupport = (doc.getObject("XY_Plane"), [""])
sketch35.MapMode = "FlatFace"
sketch35.addGeometry(Part.Circle(Vector(180, 0, 0), Vector(0, 0, 1), 20), False)
sketch35.addConstraint([
    Sketcher.Constraint("PointOnObject", 0, 3, -1),
    Sketcher.Constraint("Diameter", 0, Q("40 mm")),
    Sketcher.Constraint("DistanceX", -1, 1, 0, 3, Q("180 mm")),
])
pocket34 = body.newObject("PartDesign::Pocket", "Pocket033")
pocket34.Profile = sketch35
pocket34.Length = 10
pocket34.Reversed = True

sketch36 = body.newObject("Sketcher::SketchObject", "Sketch035")
sketch36.AttachmentSupport = (doc.getObject("XY_Plane"), [""])
sketch36.MapMode = "FlatFace"
sketch36.addGeometry(Part.Circle(Vector(120, 0, 0), Vector(0, 0, 1), 20), False)
sketch36.addConstraint([
    Sketcher.Constraint("PointOnObject", 0, 3, -1),
    Sketcher.Constraint("Diameter", 0, Q("40 mm")),
    Sketcher.Constraint("DistanceX", -1, 1, 0, 3, Q("120 mm")),
])
pocket35 = body.newObject("PartDesign::Pocket", "Pocket034")
pocket35.Profile = sketch36
pocket35.Length = 10
pocket35.Reversed = True

sketch37 = body.newObject("Sketcher::SketchObject", "Sketch036")
sketch37.AttachmentSupport = (doc.getObject("XY_Plane"), [""])
sketch37.MapMode = "FlatFace"
sketch37.addGeometry(Part.Circle(Vector(60, 0, 0), Vector(0, 0, 1), 20), False)
sketch37.addConstraint([
    Sketcher.Constraint("PointOnObject", 0, 3, -1),
    Sketcher.Constraint("Diameter", 0, Q("40 mm")),
    Sketcher.Constraint("DistanceX", -1, 1, 0, 3, Q("60 mm")),
])
pocket36 = body.newObject("PartDesign::Pocket", "Pocket035")
pocket36.Profile = sketch37
pocket36.Length = 10
pocket36.Reversed = True

sketch38 = body.newObject("Sketcher::SketchObject", "Sketch037")
sketch38.AttachmentSupport = (doc.getObject("XY_Plane"), [""])
sketch38.MapMode = "FlatFace"
sketch38.addGeometry(Part.Circle(Vector(0, 0, 0), Vector(0, 0, 1), 20), False)
sketch38.addConstraint([
    Sketcher.Constraint("Coincident", 0, 3, -1, 1),
    Sketcher.Constraint("Diameter", 0, Q("40 mm")),
])
pocket37 = body.newObject("PartDesign::Pocket", "Pocket036")
pocket37.Profile = sketch38
pocket37.Length = 10
pocket37.Reversed = True

sketch39 = body.newObject("Sketcher::SketchObject", "Sketch038")
sketch39.AttachmentSupport = (doc.getObject("XY_Plane"), [""])
sketch39.MapMode = "FlatFace"
sketch39.addGeometry(Part.Circle(Vector(-60, 0, 0), Vector(0, 0, 1), 20), False)
sketch39.addConstraint([
    Sketcher.Constraint("PointOnObject", 0, 3, -1),
    Sketcher.Constraint("Diameter", 0, Q("40 mm")),
    Sketcher.Constraint("DistanceX", 0, 3, -1, 1, Q("60 mm")),
])
pocket38 = body.newObject("PartDesign::Pocket", "Pocket037")
pocket38.Profile = sketch39
pocket38.Length = 10
pocket38.Reversed = True

sketch40 = body.newObject("Sketcher::SketchObject", "Sketch039")
sketch40.AttachmentSupport = (doc.getObject("XY_Plane"), [""])
sketch40.MapMode = "FlatFace"
sketch40.addGeometry(Part.Circle(Vector(-120, 0, 0), Vector(0, 0, 1), 20), False)
sketch40.addConstraint([
    Sketcher.Constraint("PointOnObject", 0, 3, -1),
    Sketcher.Constraint("Diameter", 0, Q("40 mm")),
    Sketcher.Constraint("DistanceX", 0, 3, -1, 1, Q("120 mm")),
])
pocket39 = body.newObject("PartDesign::Pocket", "Pocket038")
pocket39.Profile = sketch40
pocket39.Length = 10
pocket39.Reversed = True

sketch41 = body.newObject("Sketcher::SketchObject", "Sketch040")
sketch41.AttachmentSupport = (doc.getObject("XY_Plane"), [""])
sketch41.MapMode = "FlatFace"
sketch41.addGeometry(Part.Circle(Vector(-180, 0, 0), Vector(0, 0, 1), 20), False)
sketch41.addConstraint([
    Sketcher.Constraint("PointOnObject", 0, 3, -1),
    Sketcher.Constraint("Diameter", 0, Q("40 mm")),
    Sketcher.Constraint("DistanceX", 0, 3, -1, 1, Q("180 mm")),
])
pocket40 = body.newObject("PartDesign::Pocket", "Pocket039")
pocket40.Profile = sketch41
pocket40.Length = 10
pocket40.Reversed = True

sketch42 = body.newObject("Sketcher::SketchObject", "Sketch041")
sketch42.AttachmentSupport = (doc.getObject("XY_Plane"), [""])
sketch42.MapMode = "FlatFace"
sketch42.addGeometry(Part.Circle(Vector(-240, 0, 0), Vector(0, 0, 1), 20), False)
sketch42.addConstraint([
    Sketcher.Constraint("PointOnObject", 0, 3, -1),
    Sketcher.Constraint("Diameter", 0, Q("40 mm")),
    Sketcher.Constraint("DistanceX", 0, 3, -1, 1, Q("240 mm")),
])
pocket41 = body.newObject("PartDesign::Pocket", "Pocket040")
pocket41.Profile = sketch42
pocket41.Length = 10
pocket41.Reversed = True

sketch43 = body.newObject("Sketcher::SketchObject", "Sketch042")
sketch43.AttachmentSupport = (doc.getObject("XY_Plane"), [""])
sketch43.MapMode = "FlatFace"
sketch43.addGeometry(Part.Circle(Vector(-300, 0, 0), Vector(0, 0, 1), 20), False)
sketch43.addConstraint([
    Sketcher.Constraint("PointOnObject", 0, 3, -1),
    Sketcher.Constraint("Diameter", 0, Q("40 mm")),
    Sketcher.Constraint("DistanceX", 0, 3, -1, 1, Q("300 mm")),
])
pocket42 = body.newObject("PartDesign::Pocket", "Pocket041")
pocket42.Profile = sketch43
pocket42.Length = 10
pocket42.Reversed = True

sketch44 = body.newObject("Sketcher::SketchObject", "Sketch043")
sketch44.AttachmentSupport = (doc.getObject("XY_Plane"), [""])
sketch44.MapMode = "FlatFace"
sketch44.addGeometry(Part.Circle(Vector(-360, 0, 0), Vector(0, 0, 1), 20), False)
sketch44.addConstraint([
    Sketcher.Constraint("PointOnObject", 0, 3, -1),
    Sketcher.Constraint("Diameter", 0, Q("40 mm")),
    Sketcher.Constraint("DistanceX", 0, 3, -1, 1, Q("360 mm")),
])
pocket43 = body.newObject("PartDesign::Pocket", "Pocket042")
pocket43.Profile = sketch44
pocket43.Length = 10
pocket43.Reversed = True

sketch45 = body.newObject("Sketcher::SketchObject", "Sketch044")
sketch45.AttachmentSupport = (doc.getObject("XY_Plane"), [""])
sketch45.MapMode = "FlatFace"
sketch45.AttachmentOffset = App.Placement(Vector(0, 0, 10), App.Rotation())
sketch45.addGeometry([
    Part.Circle(Vector(-390, 0, 0), Vector(0, 0, 1), 5),
    Part.Circle(Vector(390, 0, 0), Vector(0, 0, 1), 5),
], False)
sketch45.addConstraint([
    Sketcher.Constraint("Equal", 0, 1),
    Sketcher.Constraint("Symmetric", 0, 3, 1, 3, -1, 1),
    Sketcher.Constraint("PointOnObject", 0, 3, -1),
    Sketcher.Constraint("Diameter", 0, Q("10 mm")),
    Sketcher.Constraint("DistanceX", 0, 3, -1, 1, Q("390 mm")),
])
pad2 = body.newObject("PartDesign::Pad", "Pad001")
pad2.Profile = sketch45
pad2.Length = 200

sketch46 = body.newObject("Sketcher::SketchObject", "Sketch045")
sketch46.AttachmentSupport = (doc.getObject("XY_Plane"), [""])
sketch46.MapMode = "FlatFace"
sketch46.AttachmentOffset = App.Placement(Vector(0, 0, 210), App.Rotation())
add_polygon(sketch46, [(-400, 30), (-400, -30), (400, -30), (400, 30)])
sketch46.addConstraint([
    Sketcher.Constraint("Vertical", 0),
    Sketcher.Constraint("Horizontal", 1),
    Sketcher.Constraint("Vertical", 2),
    Sketcher.Constraint("Horizontal", 3),
    Sketcher.Constraint("Symmetric", 0, 2, 2, 2, -1, 1),
    Sketcher.Constraint("DistanceX", 1, 1, 1, 2, Q("800 mm")),
    Sketcher.Constraint("DistanceY", 0, 2, 0, 1, Q("60 mm")),
])
pad3 = body.newObject("PartDesign::Pad", "Pad002")
pad3.Profile = sketch46
pad3.Length = 10

doc.recompute()
